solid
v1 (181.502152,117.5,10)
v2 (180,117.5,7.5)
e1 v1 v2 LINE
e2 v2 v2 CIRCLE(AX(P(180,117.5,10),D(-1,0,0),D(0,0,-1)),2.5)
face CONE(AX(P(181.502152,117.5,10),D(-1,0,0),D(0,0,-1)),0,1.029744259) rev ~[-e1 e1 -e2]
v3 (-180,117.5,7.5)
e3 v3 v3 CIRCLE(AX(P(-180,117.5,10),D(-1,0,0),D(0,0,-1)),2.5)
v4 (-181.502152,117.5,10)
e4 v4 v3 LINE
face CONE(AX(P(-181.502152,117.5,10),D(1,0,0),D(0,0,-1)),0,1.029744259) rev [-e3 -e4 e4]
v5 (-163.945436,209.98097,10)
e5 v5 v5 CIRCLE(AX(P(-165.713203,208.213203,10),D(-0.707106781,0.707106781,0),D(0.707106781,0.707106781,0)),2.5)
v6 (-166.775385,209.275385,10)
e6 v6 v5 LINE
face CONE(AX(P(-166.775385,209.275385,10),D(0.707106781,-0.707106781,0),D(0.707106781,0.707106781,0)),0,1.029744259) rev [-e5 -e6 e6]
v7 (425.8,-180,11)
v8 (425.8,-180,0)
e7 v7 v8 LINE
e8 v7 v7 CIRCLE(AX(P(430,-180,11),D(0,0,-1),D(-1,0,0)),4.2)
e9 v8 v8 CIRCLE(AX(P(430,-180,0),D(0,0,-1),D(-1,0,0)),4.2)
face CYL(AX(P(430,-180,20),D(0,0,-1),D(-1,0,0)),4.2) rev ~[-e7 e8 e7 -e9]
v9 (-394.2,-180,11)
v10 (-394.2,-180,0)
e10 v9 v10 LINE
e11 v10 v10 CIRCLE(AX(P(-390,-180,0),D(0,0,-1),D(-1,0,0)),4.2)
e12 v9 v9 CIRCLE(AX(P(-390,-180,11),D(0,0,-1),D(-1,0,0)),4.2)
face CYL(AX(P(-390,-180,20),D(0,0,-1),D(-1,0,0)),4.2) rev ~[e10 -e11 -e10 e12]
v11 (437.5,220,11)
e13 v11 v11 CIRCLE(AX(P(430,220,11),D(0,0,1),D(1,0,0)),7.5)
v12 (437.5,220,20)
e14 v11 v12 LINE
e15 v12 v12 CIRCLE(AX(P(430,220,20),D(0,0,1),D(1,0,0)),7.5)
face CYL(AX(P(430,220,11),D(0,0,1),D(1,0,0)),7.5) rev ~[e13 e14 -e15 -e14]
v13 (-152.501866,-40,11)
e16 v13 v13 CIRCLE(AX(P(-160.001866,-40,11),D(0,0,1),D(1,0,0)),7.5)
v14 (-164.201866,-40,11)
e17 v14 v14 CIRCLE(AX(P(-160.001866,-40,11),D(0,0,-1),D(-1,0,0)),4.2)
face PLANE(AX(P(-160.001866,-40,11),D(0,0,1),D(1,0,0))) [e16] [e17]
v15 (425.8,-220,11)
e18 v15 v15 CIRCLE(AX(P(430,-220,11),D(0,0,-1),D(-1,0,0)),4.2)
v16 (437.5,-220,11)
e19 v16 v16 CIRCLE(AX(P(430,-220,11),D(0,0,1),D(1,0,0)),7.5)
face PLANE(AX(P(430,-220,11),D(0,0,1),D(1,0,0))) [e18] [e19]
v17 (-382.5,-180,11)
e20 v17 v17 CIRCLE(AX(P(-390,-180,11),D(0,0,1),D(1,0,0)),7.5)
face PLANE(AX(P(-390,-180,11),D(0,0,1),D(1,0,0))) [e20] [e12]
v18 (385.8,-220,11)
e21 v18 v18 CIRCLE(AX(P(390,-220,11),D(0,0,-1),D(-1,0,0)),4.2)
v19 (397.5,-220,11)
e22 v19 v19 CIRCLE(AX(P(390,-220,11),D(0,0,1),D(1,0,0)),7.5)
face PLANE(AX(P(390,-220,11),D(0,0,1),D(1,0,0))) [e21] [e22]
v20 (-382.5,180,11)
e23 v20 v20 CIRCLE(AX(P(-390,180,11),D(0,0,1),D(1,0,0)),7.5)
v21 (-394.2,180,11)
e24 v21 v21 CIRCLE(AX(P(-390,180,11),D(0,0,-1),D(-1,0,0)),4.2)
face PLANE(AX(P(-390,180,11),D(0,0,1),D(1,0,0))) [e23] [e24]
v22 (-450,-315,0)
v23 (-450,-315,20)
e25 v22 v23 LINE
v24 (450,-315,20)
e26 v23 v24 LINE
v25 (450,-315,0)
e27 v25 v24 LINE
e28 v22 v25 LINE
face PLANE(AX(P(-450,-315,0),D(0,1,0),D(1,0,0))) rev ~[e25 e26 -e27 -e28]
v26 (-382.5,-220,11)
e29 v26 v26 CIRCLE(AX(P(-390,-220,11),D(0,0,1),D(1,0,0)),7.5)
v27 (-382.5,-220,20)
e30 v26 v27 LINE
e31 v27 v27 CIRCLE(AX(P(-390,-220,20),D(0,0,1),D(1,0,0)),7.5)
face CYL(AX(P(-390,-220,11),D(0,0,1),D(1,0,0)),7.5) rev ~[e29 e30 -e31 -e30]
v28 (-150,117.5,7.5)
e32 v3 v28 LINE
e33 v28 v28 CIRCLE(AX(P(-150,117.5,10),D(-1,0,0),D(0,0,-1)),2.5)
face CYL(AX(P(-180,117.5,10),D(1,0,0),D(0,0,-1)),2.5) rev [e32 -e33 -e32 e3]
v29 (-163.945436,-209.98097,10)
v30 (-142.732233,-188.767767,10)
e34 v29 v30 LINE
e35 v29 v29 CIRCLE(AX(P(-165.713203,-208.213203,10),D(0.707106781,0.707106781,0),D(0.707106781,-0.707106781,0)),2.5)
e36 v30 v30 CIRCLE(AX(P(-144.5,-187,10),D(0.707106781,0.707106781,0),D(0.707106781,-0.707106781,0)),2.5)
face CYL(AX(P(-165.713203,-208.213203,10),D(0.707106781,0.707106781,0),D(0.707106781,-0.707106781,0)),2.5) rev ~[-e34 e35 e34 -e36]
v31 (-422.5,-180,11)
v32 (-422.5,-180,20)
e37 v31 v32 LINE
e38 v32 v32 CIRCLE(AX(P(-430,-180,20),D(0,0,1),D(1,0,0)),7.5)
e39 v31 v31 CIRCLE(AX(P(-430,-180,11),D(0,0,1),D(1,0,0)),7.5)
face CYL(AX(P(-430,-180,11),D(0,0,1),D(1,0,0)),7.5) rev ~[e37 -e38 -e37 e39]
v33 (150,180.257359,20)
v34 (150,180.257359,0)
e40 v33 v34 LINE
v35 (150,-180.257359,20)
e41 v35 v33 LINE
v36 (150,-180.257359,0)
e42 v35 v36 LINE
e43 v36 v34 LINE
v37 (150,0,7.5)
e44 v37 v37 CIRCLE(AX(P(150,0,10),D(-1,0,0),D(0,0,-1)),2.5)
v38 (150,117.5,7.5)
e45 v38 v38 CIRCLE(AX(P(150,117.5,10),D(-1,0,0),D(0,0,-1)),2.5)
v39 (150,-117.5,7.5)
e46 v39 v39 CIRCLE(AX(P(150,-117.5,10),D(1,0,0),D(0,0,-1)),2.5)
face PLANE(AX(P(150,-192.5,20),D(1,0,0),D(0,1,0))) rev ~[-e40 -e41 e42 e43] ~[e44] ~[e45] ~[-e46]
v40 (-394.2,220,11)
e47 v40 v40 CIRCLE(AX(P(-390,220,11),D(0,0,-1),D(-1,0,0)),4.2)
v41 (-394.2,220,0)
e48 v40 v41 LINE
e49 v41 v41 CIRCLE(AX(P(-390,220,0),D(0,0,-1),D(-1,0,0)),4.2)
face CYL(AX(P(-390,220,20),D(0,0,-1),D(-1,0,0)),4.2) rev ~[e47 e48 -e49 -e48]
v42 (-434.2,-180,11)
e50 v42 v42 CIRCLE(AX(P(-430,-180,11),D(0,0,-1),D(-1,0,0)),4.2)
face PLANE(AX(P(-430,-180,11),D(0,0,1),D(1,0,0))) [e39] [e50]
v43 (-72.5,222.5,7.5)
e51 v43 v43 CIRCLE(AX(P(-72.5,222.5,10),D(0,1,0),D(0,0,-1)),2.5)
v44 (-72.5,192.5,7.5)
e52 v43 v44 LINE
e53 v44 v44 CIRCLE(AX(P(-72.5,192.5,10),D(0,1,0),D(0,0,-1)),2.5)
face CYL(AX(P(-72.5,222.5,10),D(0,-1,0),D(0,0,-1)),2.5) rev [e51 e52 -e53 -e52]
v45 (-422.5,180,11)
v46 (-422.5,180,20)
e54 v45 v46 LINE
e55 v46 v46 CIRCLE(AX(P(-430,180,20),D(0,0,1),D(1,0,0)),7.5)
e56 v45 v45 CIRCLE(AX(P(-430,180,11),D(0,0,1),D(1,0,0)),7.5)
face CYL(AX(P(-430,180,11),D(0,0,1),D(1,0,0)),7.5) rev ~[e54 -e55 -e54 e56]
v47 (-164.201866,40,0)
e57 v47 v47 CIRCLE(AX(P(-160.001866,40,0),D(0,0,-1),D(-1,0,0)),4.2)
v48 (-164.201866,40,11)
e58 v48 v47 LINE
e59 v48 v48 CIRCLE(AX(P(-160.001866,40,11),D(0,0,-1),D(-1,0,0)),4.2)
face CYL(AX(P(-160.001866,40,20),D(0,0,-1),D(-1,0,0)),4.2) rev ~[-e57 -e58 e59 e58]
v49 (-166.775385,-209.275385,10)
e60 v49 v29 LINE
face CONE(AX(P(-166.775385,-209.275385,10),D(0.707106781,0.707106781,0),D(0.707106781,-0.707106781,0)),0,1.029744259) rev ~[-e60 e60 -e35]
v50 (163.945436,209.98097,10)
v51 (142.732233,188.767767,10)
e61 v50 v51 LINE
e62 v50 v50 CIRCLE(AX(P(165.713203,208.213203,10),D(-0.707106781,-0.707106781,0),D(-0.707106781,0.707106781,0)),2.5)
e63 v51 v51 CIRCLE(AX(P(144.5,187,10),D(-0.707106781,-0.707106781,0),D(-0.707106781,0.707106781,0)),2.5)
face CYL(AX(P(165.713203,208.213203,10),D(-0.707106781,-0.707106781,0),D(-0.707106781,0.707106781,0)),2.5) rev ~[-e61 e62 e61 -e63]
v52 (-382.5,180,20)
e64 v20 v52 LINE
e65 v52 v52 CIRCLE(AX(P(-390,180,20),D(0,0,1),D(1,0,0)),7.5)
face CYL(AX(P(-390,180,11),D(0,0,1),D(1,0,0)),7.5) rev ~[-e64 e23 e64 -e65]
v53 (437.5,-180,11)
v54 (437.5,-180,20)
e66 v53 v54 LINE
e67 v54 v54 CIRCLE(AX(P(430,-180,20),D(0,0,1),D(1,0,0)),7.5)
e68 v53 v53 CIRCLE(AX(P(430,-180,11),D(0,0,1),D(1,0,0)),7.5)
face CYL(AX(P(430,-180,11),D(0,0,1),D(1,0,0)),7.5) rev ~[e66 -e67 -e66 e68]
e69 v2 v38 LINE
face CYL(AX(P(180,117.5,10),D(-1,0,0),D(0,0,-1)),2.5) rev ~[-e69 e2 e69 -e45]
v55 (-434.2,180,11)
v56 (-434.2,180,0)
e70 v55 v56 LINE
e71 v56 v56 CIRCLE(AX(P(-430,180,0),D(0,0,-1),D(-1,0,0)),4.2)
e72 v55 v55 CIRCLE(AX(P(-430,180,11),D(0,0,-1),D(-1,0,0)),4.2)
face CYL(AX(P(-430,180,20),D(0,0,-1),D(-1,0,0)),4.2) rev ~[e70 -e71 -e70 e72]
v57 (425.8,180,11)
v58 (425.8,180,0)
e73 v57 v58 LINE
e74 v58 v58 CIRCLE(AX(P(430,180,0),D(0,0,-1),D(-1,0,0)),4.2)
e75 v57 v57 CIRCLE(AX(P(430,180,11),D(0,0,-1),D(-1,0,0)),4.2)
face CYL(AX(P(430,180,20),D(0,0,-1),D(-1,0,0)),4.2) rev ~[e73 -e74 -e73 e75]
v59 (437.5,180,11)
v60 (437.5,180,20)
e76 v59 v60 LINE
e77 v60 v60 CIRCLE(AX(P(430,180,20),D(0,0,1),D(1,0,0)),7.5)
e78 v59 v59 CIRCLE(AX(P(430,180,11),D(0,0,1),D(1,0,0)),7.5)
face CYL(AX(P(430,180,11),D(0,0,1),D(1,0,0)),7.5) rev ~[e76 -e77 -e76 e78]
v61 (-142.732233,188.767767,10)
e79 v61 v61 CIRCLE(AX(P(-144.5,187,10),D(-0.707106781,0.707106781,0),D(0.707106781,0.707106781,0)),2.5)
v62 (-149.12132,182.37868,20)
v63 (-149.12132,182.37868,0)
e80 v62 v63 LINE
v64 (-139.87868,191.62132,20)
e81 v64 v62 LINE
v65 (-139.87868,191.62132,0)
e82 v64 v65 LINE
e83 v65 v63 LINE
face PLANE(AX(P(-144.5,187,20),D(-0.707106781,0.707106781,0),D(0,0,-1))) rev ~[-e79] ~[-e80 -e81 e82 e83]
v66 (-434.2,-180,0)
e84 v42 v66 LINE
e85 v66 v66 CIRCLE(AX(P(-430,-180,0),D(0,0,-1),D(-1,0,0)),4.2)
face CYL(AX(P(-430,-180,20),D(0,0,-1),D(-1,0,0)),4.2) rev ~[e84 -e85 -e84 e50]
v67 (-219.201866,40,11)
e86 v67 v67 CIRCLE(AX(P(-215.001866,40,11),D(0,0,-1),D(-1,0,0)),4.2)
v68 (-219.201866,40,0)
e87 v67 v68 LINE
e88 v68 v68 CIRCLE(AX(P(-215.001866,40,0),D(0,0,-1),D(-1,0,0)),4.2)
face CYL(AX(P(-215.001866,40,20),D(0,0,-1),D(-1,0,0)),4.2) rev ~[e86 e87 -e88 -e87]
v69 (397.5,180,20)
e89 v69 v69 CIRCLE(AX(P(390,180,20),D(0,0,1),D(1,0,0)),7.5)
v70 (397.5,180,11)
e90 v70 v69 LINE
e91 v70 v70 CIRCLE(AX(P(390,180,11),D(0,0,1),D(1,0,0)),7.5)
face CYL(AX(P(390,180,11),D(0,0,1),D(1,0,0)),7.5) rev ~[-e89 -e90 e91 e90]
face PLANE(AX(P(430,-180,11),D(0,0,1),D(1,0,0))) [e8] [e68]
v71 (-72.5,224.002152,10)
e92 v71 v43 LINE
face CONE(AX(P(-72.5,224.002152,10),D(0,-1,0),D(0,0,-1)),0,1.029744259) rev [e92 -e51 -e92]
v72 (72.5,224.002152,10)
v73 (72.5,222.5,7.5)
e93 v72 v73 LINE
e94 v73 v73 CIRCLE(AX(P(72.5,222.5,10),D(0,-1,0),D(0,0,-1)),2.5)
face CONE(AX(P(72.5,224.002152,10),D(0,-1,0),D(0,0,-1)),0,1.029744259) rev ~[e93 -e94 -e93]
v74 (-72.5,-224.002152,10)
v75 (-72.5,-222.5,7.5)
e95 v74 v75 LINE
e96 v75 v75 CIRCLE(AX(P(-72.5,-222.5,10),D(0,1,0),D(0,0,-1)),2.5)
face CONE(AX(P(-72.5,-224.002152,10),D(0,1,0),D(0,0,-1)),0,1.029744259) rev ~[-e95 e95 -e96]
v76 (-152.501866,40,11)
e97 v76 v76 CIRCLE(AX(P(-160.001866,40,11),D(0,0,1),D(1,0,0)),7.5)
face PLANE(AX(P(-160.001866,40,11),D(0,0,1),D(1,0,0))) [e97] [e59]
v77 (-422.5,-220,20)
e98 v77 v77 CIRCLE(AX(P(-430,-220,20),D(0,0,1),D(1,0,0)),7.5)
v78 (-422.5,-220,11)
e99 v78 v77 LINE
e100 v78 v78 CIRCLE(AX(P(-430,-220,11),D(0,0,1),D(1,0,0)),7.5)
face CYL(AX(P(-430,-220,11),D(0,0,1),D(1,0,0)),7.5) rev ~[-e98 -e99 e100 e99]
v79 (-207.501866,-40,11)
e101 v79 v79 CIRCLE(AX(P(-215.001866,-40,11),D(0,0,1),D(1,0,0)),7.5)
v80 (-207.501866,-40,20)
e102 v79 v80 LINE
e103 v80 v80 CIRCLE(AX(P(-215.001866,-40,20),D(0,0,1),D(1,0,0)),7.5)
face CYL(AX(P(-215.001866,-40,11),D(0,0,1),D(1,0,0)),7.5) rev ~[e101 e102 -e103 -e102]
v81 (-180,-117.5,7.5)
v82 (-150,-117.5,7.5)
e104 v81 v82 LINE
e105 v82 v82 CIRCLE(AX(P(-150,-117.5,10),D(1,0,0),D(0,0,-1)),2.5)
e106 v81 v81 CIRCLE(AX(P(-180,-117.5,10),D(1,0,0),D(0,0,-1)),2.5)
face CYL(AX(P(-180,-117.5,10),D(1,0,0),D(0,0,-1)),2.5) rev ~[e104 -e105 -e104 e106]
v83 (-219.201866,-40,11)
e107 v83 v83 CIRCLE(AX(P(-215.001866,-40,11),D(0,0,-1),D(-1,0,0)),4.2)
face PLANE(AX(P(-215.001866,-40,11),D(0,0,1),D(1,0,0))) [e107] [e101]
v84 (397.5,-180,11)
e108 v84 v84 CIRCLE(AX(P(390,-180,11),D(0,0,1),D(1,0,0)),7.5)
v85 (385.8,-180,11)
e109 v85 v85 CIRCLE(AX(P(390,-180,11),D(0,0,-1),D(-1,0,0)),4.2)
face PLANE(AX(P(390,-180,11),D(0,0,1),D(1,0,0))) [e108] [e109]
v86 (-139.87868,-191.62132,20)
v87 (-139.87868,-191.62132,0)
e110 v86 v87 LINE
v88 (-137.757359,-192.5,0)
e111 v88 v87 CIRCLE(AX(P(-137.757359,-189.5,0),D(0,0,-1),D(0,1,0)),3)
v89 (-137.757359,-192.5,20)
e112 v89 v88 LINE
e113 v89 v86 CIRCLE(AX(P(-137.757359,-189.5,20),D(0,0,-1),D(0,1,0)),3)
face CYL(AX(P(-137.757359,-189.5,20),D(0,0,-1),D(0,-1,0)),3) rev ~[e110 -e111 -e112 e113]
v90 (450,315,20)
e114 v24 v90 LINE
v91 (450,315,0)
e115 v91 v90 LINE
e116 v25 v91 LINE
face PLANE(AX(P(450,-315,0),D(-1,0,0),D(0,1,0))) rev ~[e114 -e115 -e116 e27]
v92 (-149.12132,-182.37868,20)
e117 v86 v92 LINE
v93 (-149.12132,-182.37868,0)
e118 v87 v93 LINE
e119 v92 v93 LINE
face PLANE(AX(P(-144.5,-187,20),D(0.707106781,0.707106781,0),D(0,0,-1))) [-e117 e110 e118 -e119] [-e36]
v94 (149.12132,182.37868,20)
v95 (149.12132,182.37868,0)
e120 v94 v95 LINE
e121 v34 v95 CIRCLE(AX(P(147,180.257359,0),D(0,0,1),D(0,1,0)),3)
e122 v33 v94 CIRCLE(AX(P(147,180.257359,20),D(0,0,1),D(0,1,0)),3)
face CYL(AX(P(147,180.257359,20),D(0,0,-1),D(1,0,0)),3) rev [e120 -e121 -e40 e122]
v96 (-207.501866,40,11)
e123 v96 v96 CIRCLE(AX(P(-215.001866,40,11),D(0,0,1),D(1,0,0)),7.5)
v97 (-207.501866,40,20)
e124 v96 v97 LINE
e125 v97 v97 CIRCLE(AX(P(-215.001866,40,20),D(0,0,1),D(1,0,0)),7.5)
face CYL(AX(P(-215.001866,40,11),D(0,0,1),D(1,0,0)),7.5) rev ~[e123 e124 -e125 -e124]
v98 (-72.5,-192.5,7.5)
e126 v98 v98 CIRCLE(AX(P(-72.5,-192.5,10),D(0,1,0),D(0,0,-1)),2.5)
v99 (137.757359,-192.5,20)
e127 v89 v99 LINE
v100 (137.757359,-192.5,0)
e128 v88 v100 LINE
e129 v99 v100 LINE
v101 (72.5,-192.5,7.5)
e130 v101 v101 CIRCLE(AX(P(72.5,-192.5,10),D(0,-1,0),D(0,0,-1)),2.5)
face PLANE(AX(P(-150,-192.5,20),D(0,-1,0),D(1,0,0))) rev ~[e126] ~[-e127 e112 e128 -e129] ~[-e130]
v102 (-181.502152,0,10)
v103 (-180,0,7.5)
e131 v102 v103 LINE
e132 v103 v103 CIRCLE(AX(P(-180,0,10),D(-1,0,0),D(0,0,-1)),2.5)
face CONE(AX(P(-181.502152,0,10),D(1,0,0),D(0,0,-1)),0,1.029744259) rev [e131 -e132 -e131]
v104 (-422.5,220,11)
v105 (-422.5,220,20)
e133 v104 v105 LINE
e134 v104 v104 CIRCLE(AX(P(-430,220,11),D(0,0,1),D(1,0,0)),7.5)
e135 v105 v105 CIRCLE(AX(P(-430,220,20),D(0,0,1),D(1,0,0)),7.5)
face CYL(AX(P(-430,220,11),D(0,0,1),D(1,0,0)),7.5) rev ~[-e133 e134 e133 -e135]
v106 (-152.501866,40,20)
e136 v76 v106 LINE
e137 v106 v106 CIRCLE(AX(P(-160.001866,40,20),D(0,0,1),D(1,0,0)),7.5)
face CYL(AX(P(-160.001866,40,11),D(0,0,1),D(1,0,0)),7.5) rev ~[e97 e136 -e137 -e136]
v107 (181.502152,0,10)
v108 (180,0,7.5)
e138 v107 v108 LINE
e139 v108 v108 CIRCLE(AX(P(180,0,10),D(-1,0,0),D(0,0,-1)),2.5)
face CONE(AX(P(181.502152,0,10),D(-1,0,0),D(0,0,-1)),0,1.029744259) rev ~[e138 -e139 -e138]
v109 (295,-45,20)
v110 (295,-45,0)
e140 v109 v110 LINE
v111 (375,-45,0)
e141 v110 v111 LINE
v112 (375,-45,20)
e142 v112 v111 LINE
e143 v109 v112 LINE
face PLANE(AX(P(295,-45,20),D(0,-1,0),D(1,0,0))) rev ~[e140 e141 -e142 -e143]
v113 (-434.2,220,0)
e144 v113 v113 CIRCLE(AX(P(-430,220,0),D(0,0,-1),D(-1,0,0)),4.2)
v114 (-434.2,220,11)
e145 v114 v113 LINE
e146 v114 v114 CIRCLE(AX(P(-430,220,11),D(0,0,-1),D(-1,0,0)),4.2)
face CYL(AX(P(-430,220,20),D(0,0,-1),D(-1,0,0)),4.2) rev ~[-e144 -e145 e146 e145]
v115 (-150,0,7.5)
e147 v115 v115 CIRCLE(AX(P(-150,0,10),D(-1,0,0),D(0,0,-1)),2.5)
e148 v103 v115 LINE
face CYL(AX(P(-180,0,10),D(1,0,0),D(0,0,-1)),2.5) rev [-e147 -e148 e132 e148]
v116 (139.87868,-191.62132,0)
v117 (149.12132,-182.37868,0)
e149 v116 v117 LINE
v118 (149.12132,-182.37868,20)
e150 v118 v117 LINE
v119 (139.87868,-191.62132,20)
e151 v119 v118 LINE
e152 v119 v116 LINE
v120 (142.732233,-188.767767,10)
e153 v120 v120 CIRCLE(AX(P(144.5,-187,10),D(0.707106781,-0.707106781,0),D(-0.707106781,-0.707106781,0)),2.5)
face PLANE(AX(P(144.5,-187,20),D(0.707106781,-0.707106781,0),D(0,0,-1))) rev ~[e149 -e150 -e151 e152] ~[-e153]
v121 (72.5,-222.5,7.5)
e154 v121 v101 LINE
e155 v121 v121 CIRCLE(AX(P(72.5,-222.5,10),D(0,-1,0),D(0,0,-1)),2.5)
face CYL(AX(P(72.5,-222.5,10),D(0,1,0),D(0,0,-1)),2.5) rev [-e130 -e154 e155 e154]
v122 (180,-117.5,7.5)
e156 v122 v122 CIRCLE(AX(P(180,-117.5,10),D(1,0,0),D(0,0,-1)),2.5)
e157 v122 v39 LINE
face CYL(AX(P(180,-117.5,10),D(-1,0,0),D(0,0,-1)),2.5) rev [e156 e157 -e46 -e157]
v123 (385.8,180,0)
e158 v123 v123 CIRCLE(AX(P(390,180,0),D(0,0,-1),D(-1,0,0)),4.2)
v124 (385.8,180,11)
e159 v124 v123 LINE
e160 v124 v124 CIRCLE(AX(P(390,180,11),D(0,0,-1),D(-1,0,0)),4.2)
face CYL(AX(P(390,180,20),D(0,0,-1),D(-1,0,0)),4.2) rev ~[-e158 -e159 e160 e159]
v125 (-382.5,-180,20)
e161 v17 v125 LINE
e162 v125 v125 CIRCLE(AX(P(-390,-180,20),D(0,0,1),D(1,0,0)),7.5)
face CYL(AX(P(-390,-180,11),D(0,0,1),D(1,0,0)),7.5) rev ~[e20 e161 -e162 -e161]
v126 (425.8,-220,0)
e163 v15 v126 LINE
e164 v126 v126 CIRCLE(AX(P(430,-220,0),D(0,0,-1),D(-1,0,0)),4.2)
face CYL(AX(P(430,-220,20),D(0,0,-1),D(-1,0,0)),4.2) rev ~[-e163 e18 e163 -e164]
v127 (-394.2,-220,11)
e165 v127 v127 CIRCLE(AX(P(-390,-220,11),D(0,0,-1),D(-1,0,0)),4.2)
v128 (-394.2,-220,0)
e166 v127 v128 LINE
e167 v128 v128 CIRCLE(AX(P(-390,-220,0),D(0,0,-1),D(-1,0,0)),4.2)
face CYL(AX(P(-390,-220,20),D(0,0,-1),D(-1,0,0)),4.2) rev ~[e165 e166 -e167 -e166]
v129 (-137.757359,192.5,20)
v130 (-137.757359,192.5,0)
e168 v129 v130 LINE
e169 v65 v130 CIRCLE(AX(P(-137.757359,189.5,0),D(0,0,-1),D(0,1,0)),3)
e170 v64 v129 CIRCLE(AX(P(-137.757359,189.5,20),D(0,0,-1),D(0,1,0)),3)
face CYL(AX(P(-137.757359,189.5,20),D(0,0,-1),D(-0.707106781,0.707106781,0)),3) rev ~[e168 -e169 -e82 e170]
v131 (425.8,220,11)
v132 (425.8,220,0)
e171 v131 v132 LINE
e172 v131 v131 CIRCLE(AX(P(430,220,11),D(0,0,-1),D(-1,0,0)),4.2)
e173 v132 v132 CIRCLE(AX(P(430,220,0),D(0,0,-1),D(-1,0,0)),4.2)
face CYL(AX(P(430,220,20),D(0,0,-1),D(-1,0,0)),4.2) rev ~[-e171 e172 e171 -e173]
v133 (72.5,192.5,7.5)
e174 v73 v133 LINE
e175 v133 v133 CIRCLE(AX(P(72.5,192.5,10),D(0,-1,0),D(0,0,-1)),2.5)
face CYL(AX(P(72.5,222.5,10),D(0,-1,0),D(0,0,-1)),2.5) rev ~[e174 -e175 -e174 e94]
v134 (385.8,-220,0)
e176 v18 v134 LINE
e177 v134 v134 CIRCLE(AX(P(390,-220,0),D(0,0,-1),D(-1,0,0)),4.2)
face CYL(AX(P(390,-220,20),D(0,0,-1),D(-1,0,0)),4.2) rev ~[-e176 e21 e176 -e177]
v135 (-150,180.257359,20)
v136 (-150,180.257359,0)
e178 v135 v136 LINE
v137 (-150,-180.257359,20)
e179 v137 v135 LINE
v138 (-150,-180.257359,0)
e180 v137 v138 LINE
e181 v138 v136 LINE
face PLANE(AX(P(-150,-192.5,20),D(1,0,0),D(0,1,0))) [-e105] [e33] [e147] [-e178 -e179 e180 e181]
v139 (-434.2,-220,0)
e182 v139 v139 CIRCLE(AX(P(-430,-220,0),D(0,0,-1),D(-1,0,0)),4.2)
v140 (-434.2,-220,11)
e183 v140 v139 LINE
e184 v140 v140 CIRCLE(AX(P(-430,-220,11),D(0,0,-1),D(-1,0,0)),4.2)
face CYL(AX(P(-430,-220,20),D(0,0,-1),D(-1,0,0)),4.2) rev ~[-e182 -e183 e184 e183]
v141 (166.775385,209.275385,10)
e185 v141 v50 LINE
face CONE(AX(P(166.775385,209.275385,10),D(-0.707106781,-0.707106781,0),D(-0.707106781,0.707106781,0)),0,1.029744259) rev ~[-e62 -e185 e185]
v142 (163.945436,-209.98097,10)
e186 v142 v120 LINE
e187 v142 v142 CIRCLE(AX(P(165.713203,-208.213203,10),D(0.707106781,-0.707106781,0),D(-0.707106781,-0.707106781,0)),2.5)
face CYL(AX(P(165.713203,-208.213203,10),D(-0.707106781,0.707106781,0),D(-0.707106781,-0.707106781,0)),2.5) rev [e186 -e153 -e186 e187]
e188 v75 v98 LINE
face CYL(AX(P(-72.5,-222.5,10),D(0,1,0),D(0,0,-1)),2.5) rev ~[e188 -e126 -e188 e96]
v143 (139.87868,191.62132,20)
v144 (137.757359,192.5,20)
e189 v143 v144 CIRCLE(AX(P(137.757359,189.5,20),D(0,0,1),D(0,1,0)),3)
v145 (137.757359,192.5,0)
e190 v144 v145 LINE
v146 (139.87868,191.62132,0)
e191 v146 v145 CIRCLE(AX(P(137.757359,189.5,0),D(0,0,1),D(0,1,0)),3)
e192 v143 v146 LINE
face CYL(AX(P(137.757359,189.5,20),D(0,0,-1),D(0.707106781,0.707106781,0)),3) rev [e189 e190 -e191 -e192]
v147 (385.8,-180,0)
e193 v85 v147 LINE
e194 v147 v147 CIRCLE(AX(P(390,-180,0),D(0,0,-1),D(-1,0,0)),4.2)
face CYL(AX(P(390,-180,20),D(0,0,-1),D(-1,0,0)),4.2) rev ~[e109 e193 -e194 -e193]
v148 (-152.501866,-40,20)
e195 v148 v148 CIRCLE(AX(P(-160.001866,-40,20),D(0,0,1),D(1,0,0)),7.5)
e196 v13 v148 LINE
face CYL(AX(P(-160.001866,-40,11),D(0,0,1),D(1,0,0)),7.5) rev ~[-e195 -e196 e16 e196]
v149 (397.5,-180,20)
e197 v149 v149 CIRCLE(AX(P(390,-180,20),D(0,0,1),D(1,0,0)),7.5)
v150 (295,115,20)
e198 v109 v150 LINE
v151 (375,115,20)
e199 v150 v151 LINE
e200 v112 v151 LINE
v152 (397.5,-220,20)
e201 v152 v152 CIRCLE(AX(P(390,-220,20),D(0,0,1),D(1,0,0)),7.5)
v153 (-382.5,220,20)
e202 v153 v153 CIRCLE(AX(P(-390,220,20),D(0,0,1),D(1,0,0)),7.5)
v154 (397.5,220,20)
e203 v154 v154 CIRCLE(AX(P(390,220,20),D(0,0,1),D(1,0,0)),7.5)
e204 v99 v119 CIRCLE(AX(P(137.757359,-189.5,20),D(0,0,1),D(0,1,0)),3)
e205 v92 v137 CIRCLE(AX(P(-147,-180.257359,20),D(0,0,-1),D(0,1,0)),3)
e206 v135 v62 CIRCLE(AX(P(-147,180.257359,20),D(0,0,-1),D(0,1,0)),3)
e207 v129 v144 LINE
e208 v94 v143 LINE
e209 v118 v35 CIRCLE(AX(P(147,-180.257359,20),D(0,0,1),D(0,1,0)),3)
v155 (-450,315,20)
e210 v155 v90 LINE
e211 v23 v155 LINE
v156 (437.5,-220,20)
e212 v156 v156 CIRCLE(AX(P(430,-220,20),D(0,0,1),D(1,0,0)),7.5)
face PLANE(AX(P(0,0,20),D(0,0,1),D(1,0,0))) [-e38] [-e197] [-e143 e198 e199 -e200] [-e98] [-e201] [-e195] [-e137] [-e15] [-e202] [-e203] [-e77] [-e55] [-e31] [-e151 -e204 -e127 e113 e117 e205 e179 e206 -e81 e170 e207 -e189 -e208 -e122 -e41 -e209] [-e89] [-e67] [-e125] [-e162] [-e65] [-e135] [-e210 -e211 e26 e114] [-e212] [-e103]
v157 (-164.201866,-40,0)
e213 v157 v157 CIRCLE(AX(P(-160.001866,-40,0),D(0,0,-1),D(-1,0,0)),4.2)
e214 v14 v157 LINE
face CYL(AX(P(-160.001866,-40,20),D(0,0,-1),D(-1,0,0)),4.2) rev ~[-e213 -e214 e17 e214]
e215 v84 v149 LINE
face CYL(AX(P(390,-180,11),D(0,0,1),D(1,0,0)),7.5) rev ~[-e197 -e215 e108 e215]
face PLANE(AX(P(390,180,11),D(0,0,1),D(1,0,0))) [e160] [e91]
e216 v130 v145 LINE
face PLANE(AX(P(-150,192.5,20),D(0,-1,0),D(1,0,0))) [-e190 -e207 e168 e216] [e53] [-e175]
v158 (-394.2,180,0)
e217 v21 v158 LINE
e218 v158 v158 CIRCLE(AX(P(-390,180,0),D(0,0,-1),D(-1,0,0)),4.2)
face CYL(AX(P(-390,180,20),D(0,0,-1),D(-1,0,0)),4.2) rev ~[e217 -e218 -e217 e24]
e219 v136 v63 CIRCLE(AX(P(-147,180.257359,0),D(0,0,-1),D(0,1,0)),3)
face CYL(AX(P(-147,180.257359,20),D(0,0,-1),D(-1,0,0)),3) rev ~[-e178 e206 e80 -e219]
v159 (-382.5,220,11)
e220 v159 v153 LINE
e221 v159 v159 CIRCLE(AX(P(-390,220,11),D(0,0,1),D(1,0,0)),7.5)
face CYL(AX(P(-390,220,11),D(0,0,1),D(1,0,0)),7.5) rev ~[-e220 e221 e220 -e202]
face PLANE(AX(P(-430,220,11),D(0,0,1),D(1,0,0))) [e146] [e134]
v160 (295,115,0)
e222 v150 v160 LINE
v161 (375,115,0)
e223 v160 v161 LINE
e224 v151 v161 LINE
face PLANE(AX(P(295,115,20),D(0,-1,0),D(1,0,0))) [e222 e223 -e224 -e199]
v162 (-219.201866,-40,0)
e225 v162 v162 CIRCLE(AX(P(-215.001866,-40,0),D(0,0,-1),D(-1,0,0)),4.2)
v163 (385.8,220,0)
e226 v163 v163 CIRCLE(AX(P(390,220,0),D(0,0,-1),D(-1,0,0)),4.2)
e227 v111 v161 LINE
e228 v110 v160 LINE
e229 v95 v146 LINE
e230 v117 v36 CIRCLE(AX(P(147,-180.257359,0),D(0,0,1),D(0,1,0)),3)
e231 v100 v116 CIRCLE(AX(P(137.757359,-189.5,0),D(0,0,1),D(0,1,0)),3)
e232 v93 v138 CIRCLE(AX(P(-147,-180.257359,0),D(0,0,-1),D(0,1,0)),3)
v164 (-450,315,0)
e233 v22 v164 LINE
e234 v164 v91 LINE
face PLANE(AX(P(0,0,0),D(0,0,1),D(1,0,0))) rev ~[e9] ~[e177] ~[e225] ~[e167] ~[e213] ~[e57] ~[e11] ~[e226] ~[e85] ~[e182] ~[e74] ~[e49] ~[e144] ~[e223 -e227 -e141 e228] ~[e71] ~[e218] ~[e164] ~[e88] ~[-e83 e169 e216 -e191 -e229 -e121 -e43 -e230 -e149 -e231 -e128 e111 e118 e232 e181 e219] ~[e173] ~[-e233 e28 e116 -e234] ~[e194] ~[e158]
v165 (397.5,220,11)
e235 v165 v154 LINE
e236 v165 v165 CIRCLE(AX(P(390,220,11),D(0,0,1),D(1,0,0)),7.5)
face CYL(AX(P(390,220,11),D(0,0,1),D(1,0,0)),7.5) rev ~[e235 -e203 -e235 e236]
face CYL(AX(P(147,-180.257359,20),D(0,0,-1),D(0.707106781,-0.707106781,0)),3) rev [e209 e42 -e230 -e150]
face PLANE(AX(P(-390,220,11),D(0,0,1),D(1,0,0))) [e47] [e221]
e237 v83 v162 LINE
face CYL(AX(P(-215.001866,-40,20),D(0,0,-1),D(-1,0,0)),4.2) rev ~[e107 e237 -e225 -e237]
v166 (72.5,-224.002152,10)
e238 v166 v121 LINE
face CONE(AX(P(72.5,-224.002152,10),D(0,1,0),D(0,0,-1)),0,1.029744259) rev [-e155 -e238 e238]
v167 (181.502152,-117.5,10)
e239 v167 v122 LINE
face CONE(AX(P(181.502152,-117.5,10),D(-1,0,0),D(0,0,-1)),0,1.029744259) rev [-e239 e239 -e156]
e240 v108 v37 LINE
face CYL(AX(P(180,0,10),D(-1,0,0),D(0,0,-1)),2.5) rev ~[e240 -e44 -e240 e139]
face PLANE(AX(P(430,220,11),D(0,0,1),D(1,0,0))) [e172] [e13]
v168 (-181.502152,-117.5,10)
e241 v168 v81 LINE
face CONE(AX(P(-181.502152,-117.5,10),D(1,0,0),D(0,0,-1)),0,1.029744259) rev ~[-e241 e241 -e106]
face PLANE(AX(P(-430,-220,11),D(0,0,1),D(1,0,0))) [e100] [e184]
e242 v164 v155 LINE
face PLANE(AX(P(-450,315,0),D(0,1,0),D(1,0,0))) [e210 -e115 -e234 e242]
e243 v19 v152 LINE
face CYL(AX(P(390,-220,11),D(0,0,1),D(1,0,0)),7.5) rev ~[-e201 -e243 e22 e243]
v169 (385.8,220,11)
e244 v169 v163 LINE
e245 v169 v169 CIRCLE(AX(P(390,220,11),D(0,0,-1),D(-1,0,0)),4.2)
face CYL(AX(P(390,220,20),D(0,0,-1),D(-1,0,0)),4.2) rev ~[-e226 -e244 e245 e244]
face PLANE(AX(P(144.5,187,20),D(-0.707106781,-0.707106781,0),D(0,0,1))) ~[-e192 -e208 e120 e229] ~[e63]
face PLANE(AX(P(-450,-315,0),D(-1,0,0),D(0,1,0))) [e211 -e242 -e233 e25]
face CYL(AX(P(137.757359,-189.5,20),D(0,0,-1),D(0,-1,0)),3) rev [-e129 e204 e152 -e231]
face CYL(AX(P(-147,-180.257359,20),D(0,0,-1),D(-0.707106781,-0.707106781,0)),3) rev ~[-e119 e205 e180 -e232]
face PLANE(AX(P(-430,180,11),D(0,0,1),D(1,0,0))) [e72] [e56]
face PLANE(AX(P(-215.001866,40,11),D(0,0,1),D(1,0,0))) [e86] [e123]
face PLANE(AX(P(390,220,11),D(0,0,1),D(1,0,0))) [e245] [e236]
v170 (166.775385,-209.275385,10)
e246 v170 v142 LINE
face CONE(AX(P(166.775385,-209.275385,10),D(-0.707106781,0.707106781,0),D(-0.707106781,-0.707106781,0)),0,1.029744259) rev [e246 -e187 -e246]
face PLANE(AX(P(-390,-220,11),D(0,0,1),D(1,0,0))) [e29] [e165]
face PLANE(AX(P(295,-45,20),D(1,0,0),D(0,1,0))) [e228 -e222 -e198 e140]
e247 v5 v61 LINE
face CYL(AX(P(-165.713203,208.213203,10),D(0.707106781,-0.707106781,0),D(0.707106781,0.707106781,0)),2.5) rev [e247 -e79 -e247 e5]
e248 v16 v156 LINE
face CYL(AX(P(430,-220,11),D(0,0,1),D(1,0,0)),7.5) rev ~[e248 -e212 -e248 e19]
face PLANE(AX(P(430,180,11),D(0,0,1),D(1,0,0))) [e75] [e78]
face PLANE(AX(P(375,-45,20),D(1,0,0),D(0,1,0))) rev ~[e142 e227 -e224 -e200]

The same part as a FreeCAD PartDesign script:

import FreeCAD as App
import Part
import Sketcher

V = App.Vector
Q = App.Units.Quantity


def edges_at(feature, points):
    """Names of the edges that pass closest to the given points."""
    edges = feature.Shape.Edges
    near = lambda p: min(range(len(edges)), key=lambda i: edges[i].distToShape(Part.Vertex(*p))[0])
    return sorted({f"Edge{near(p) + 1}" for p in points})

doc = App.newDocument("Part")
body = doc.addObject("PartDesign::Body", "Body")

sketch1 = doc.addObject("Sketcher::SketchObject", "Sketch")
body.addObject(sketch1)
sketch1.AttachmentSupport = (doc.XY_Plane, [""])
sketch1.MapMode = "FlatFace"
sketch1.addGeometry([
    Part.LineSegment(V(-450, 315, 0), V(-450, -315, 0)),
    Part.LineSegment(V(-450, -315, 0), V(450, -315, 0)),
    Part.LineSegment(V(450, -315, 0), V(450, 315, 0)),
    Part.LineSegment(V(450, 315, 0), V(-450, 315, 0)),
], False)
sketch1.addConstraint([
    Sketcher.Constraint("Coincident", 0, 2, 1, 1),
    Sketcher.Constraint("Coincident", 1, 2, 2, 1),
    Sketcher.Constraint("Coincident", 2, 2, 3, 1),
    Sketcher.Constraint("Coincident", 3, 2, 0, 1),
    Sketcher.Constraint("Vertical", 0),
    Sketcher.Constraint("Horizontal", 1),
    Sketcher.Constraint("Vertical", 2),
    Sketcher.Constraint("Horizontal", 3),
    Sketcher.Constraint("Symmetric", 0, 2, 2, 2, -1, 1),
    Sketcher.Constraint("DistanceX", 1, 1, 1, 2, 900.0),
    Sketcher.Constraint("DistanceY", 0, 2, 0, 1, 630.0),
])
pad1 = doc.addObject("PartDesign::Pad", "Pad")
body.addObject(pad1)
pad1.Profile = sketch1
pad1.Length = 20

sketch2 = doc.addObject("Sketcher::SketchObject", "Sketch001")
body.addObject(sketch2)
sketch2.AttachmentSupport = (doc.XY_Plane, [""])
sketch2.MapMode = "FlatFace"
sketch2.AttachmentOffset = App.Placement(V(0, 0, 20), App.Rotation())
sketch2.addGeometry([
    Part.LineSegment(V(-150, 192, 0), V(-150, -192, 0)),
    Part.LineSegment(V(-150, -192, 0), V(150, -192, 0)),
    Part.LineSegment(V(150, -192, 0), V(150, 192, 0)),
    Part.LineSegment(V(150, 192, 0), V(-150, 192, 0)),
], False)
sketch2.addConstraint([
    Sketcher.Constraint("Coincident", 0, 2, 1, 1),
    Sketcher.Constraint("Coincident", 1, 2, 2, 1),
    Sketcher.Constraint("Coincident", 2, 2, 3, 1),
    Sketcher.Constraint("Coincident", 3, 2, 0, 1),
    Sketcher.Constraint("Vertical", 0),
    Sketcher.Constraint("Horizontal", 1),
    Sketcher.Constraint("Vertical", 2),
    Sketcher.Constraint("Horizontal", 3),
    Sketcher.Constraint("Symmetric", 0, 2, 2, 2, -1, 1),
    Sketcher.Constraint("DistanceX", 1, 1, 1, 2, 300.0),
    Sketcher.Constraint("DistanceY", 0, 2, 0, 1, 385.0),
])
pocket1 = doc.addObject("PartDesign::Pocket", "Pocket")
body.addObject(pocket1)
pocket1.Profile = sketch2
pocket1.Type = "ThroughAll"
doc.recompute()

chamfer = doc.addObject("PartDesign::Chamfer", "Chamfer")
body.addObject(chamfer)
chamfer.Base = (pocket1, edges_at(pocket1, [
    (-150, -192.5, 10),
    (-150, 192.5, 10),
    (150, 192.5, 10),
    (150, -192.5, 10),
]))
chamfer.Size = 11

sketch3 = doc.addObject("Sketcher::SketchObject", "Sketch002")
body.addObject(sketch3)
sketch3.AttachmentSupport = (doc.XY_Plane, [""])
sketch3.MapMode = "FlatFace"
sketch3.AttachmentOffset = App.Placement(V(0, 0, 10), App.Rotation())
sketch3.addGeometry([
    Part.LineSegment(V(-166.8, 209.3, 0), V(-144.5, 187, 0)),
    Part.LineSegment(V(-144.5, 187, 0), V(-142.7, 188.8, 0)),
    Part.LineSegment(V(-142.7, 188.8, 0), V(-163.9, 210, 0)),
    Part.LineSegment(V(-163.9, 210, 0), V(-166.8, 209.3, 0)),
], False)
sketch3.addGeometry(Part.LineSegment(V(-144.5, 187, 0), V(-166.8, 209.3, 0)), True)
sketch3.addConstraint([
    Sketcher.Constraint("Coincident", 0, 2, 1, 1),
    Sketcher.Constraint("Coincident", 1, 2, 2, 1),
    Sketcher.Constraint("Coincident", 2, 2, 3, 1),
    Sketcher.Constraint("Coincident", 3, 2, 0, 1),
    Sketcher.Constraint("Coincident", 4, 1, 0, 2),
    Sketcher.Constraint("Coincident", 4, 2, 3, 2),
    Sketcher.Constraint("Perpendicular", 0, 1),
    Sketcher.Constraint("Perpendicular", 1, 2),
    Sketcher.Constraint("Angle", 0, Q("-45 deg")),
    Sketcher.Constraint("Angle", 3, Q("-166 deg")),
    Sketcher.Constraint("Distance", 2, 30.0),
    Sketcher.Constraint("DistanceY", -1, 1, 0, 2, 187.0),
    Sketcher.Constraint("Distance", 1, 2.5),
    Sketcher.Constraint("DistanceX", 0, 2, -1, 1, 144.5),
])
groove = doc.addObject("PartDesign::Groove", "Groove")
body.addObject(groove)
groove.Profile = sketch3
groove.ReferenceAxis = (sketch3, ["Axis0"])
groove.Angle = 360
doc.recompute()

fillet = doc.addObject("PartDesign::Fillet", "Fillet")
body.addObject(fillet)
fillet.Base = (groove, edges_at(groove, [
    (139, -192.5, 10),
    (-139, -192.5, 10),
    (-150, 181.5, 10),
    (-150, -181.5, 10),
    (150, 181.5, 10),
    (150, -181.5, 10),
    (-139, 192.5, 10),
    (139, 192.5, 10),
]))
fillet.Radius = 3

sketch4 = doc.addObject("Sketcher::SketchObject", "Sketch003")
body.addObject(sketch4)
sketch4.AttachmentSupport = (doc.XZ_Plane, [""])
sketch4.MapMode = "FlatFace"
sketch4.addGeometry([
    Part.LineSegment(V(-181.5, 10, 0), V(-150, 10, 0)),
    Part.LineSegment(V(-150, 10, 0), V(-150, 7.5, 0)),
    Part.LineSegment(V(-150, 7.5, 0), V(-180, 7.5, 0)),
    Part.LineSegment(V(-180, 7.5, 0), V(-181.5, 10, 0)),
], False)
sketch4.addGeometry(Part.LineSegment(V(-150, 10, 0), V(-181.5, 10, 0)), True)
sketch4.addConstraint([
    Sketcher.Constraint("Coincident", 0, 2, 1, 1),
    Sketcher.Constraint("Coincident", 1, 2, 2, 1),
    Sketcher.Constraint("Coincident", 2, 2, 3, 1),
    Sketcher.Constraint("Coincident", 3, 2, 0, 1),
    Sketcher.Constraint("Horizontal", 0),
    Sketcher.Constraint("Vertical", 1),
    Sketcher.Constraint("Horizontal", 2),
    Sketcher.Constraint("Horizontal", 4),
    Sketcher.Constraint("Coincident", 4, 1, 0, 2),
    Sketcher.Constraint("Equal", 0, 4),
    Sketcher.Constraint("DistanceX", 2, 2, 2, 1, 30.0),
    Sketcher.Constraint("Angle", 3, Q("121 deg")),
    Sketcher.Constraint("DistanceY", 1, 2, 1, 1, 2.5),
    Sketcher.Constraint("DistanceX", 0, 2, -1, 1, 150.0),
    Sketcher.Constraint("DistanceY", -1, 1, 0, 2, 10.0),
])
groove2 = doc.addObject("PartDesign::Groove", "Groove001")
body.addObject(groove2)
groove2.Profile = sketch4
groove2.ReferenceAxis = (sketch4, ["Axis0"])
groove2.Angle = 360
doc.recompute()

linearpattern = doc.addObject("PartDesign::LinearPattern", "LinearPattern")
body.addObject(linearpattern)
linearpattern.Originals = [groove2]
linearpattern.Direction = (doc.Y_Axis, [""])
linearpattern.Mode = "offset"
linearpattern.Offset = 117.5
linearpattern.Occurrences = 2
body.Tip = linearpattern

sketch5 = doc.addObject("Sketcher::SketchObject", "Sketch004")
body.addObject(sketch5)
sketch5.AttachmentSupport = (doc.YZ_Plane, [""])
sketch5.MapMode = "FlatFace"
sketch5.AttachmentOffset = App.Placement(V(0, 0, -72.5), App.Rotation())
sketch5.addGeometry([
    Part.LineSegment(V(224, 10, 0), V(192.5, 10, 0)),
    Part.LineSegment(V(192.5, 10, 0), V(192.5, 7.5, 0)),
    Part.LineSegment(V(192.5, 7.5, 0), V(222.5, 7.5, 0)),
    Part.LineSegment(V(222.5, 7.5, 0), V(224, 10, 0)),
], False)
sketch5.addGeometry(Part.LineSegment(V(192.5, 10, 0), V(224, 10, 0)), True)
sketch5.addConstraint([
    Sketcher.Constraint("Coincident", 0, 2, 1, 1),
    Sketcher.Constraint("Coincident", 1, 2, 2, 1),
    Sketcher.Constraint("Coincident", 2, 2, 3, 1),
    Sketcher.Constraint("Coincident", 3, 2, 0, 1),
    Sketcher.Constraint("Horizontal", 0),
    Sketcher.Constraint("Vertical", 1),
    Sketcher.Constraint("Horizontal", 2),
    Sketcher.Constraint("Horizontal", 4),
    Sketcher.Constraint("Coincident", 4, 1, 0, 2),
    Sketcher.Constraint("Equal", 0, 4),
    Sketcher.Constraint("DistanceX", 2, 1, 2, 2, 30.0),
    Sketcher.Constraint("Angle", 3, Q("59 deg")),
    Sketcher.Constraint("DistanceY", 1, 2, 1, 1, 2.5),
    Sketcher.Constraint("DistanceY", -1, 1, 0, 2, 10.0),
    Sketcher.Constraint("DistanceX", -1, 1, 0, 2, 192.5),
])
groove3 = doc.addObject("PartDesign::Groove", "Groove002")
body.addObject(groove3)
groove3.Profile = sketch5
groove3.ReferenceAxis = (sketch5, ["Axis0"])
groove3.Angle = 360
doc.recompute()

mirrored = doc.addObject("PartDesign::Mirrored", "Mirrored")
body.addObject(mirrored)
mirrored.Originals = [groove, groove2, groove3]
mirrored.MirrorPlane = (doc.YZ_Plane, [""])
body.Tip = mirrored

sketch6 = doc.addObject("Sketcher::SketchObject", "Sketch005")
body.addObject(sketch6)
sketch6.AttachmentSupport = (doc.XZ_Plane, [""])
sketch6.MapMode = "FlatFace"
sketch6.AttachmentOffset = App.Placement(V(0, 0, -117.5), App.Rotation())
sketch6.addGeometry([
    Part.LineSegment(V(150, 10, 0), V(181.5, 10, 0)),
    Part.LineSegment(V(181.5, 10, 0), V(180, 7.5, 0)),
    Part.LineSegment(V(180, 7.5, 0), V(150, 7.5, 0)),
    Part.LineSegment(V(150, 7.5, 0), V(150, 10, 0)),
], False)
sketch6.addGeometry(Part.LineSegment(V(181.5, 10, 0), V(150, 10, 0)), True)
sketch6.addConstraint([
    Sketcher.Constraint("Coincident", 0, 2, 1, 1),
    Sketcher.Constraint("Coincident", 1, 2, 2, 1),
    Sketcher.Constraint("Coincident", 2, 2, 3, 1),
    Sketcher.Constraint("Coincident", 3, 2, 0, 1),
    Sketcher.Constraint("Horizontal", 0),
    Sketcher.Constraint("Horizontal", 2),
    Sketcher.Constraint("Vertical", 3),
    Sketcher.Constraint("Horizontal", 4),
    Sketcher.Constraint("Coincident", 4, 1, 0, 2),
    Sketcher.Constraint("Vertical", 2, 2, 4, 2),
    Sketcher.Constraint("DistanceX", 2, 2, 2, 1, 30.0),
    Sketcher.Constraint("Angle", 1, Q("-121 deg")),
    Sketcher.Constraint("DistanceY", 3, 1, 3, 2, 2.5),
    Sketcher.Constraint("DistanceY", -1, 1, 0, 2, 10.0),
    Sketcher.Constraint("DistanceX", -1, 1, 1, 2, 180.0),
])
groove4 = doc.addObject("PartDesign::Groove", "Groove003")
body.addObject(groove4)
groove4.Profile = sketch6
groove4.ReferenceAxis = (sketch6, ["Axis0"])
groove4.Angle = 360
doc.recompute()

mirrored2 = doc.addObject("PartDesign::Mirrored", "Mirrored001")
body.addObject(mirrored2)
mirrored2.Originals = [groove, groove2, groove3]
mirrored2.MirrorPlane = (doc.XZ_Plane, [""])
body.Tip = mirrored2

sketch7 = doc.addObject("Sketcher::SketchObject", "Sketch006")
body.addObject(sketch7)
sketch7.AttachmentSupport = (doc.XZ_Plane, [""])
sketch7.MapMode = "FlatFace"
sketch7.AttachmentOffset = App.Placement(V(0, 0, 117.5), App.Rotation())
sketch7.addGeometry([
    Part.LineSegment(V(-150, 10, 0), V(-181.5, 10, 0)),
    Part.LineSegment(V(-181.5, 10, 0), V(-180, 7.5, 0)),
    Part.LineSegment(V(-180, 7.5, 0), V(-150, 7.5, 0)),
    Part.LineSegment(V(-150, 7.5, 0), V(-150, 10, 0)),
], False)
sketch7.addGeometry(Part.LineSegment(V(-181.5, 10, 0), V(-150, 10, 0)), True)
sketch7.addConstraint([
    Sketcher.Constraint("Coincident", 0, 2, 1, 1),
    Sketcher.Constraint("Coincident", 1, 2, 2, 1),
    Sketcher.Constraint("Coincident", 2, 2, 3, 1),
    Sketcher.Constraint("Coincident", 3, 2, 0, 1),
    Sketcher.Constraint("Horizontal", 0),
    Sketcher.Constraint("Horizontal", 2),
    Sketcher.Constraint("Vertical", 3),
    Sketcher.Constraint("Horizontal", 4),
    Sketcher.Constraint("Coincident", 4, 1, 0, 2),
    Sketcher.Constraint("Vertical", 2, 2, 4, 2),
    Sketcher.Constraint("DistanceX", 2, 1, 2, 2, 30.0),
    Sketcher.Constraint("Angle", 1, Q("-59 deg")),
    Sketcher.Constraint("DistanceY", 3, 1, 3, 2, 2.5),
    Sketcher.Constraint("DistanceY", -1, 1, 0, 2, 10.0),
    Sketcher.Constraint("DistanceX", 1, 2, -1, 1, 180.0),
])
groove5 = doc.addObject("PartDesign::Groove", "Groove004")
body.addObject(groove5)
groove5.Profile = sketch7
groove5.ReferenceAxis = (sketch7, ["Axis0"])
groove5.Angle = 360

sketch8 = doc.addObject("Sketcher::SketchObject", "Sketch007")
body.addObject(sketch8)
sketch8.AttachmentSupport = (doc.XY_Plane, [""])
sketch8.MapMode = "FlatFace"
sketch8.AttachmentOffset = App.Placement(V(0, 0, 10), App.Rotation())
sketch8.addGeometry([
    Part.LineSegment(V(166.8, -209.3, 0), V(144.5, -187, 0)),
    Part.LineSegment(V(144.5, -187, 0), V(142.7, -188.8, 0)),
    Part.LineSegment(V(142.7, -188.8, 0), V(163.9, -210, 0)),
    Part.LineSegment(V(163.9, -210, 0), V(166.8, -209.3, 0)),
], False)
sketch8.addGeometry(Part.LineSegment(V(144.5, -187, 0), V(166.8, -209.3, 0)), True)
sketch8.addConstraint([
    Sketcher.Constraint("Coincident", 0, 2, 1, 1),
    Sketcher.Constraint("Coincident", 1, 2, 2, 1),
    Sketcher.Constraint("Coincident", 2, 2, 3, 1),
    Sketcher.Constraint("Coincident", 3, 2, 0, 1),
    Sketcher.Constraint("Coincident", 4, 1, 0, 2),
    Sketcher.Constraint("Coincident", 4, 2, 3, 2),
    Sketcher.Constraint("Perpendicular", 0, 1),
    Sketcher.Constraint("Perpendicular", 1, 2),
    Sketcher.Constraint("Angle", 0, Q("135 deg")),
    Sketcher.Constraint("Angle", 3, Q("14 deg")),
    Sketcher.Constraint("Distance", 2, 30.0),
    Sketcher.Constraint("DistanceY", 0, 2, -1, 1, 187.0),
    Sketcher.Constraint("Distance", 1, 2.5),
    Sketcher.Constraint("DistanceX", -1, 1, 0, 2, 144.5),
])
groove6 = doc.addObject("PartDesign::Groove", "Groove005")
body.addObject(groove6)
groove6.Profile = sketch8
groove6.ReferenceAxis = (sketch8, ["Axis0"])
groove6.Angle = 360

sketch9 = doc.addObject("Sketcher::SketchObject", "Sketch008")
body.addObject(sketch9)
sketch9.AttachmentSupport = (doc.XZ_Plane, [""])
sketch9.MapMode = "FlatFace"
sketch9.addGeometry([
    Part.LineSegment(V(181.5, 10, 0), V(150, 10, 0)),
    Part.LineSegment(V(150, 10, 0), V(150, 7.5, 0)),
    Part.LineSegment(V(150, 7.5, 0), V(180, 7.5, 0)),
    Part.LineSegment(V(180, 7.5, 0), V(181.5, 10, 0)),
], False)
sketch9.addGeometry(Part.LineSegment(V(150, 10, 0), V(181.5, 10, 0)), True)
sketch9.addConstraint([
    Sketcher.Constraint("Coincident", 0, 2, 1, 1),
    Sketcher.Constraint("Coincident", 1, 2, 2, 1),
    Sketcher.Constraint("Coincident", 2, 2, 3, 1),
    Sketcher.Constraint("Coincident", 3, 2, 0, 1),
    Sketcher.Constraint("Horizontal", 0),
    Sketcher.Constraint("Vertical", 1),
    Sketcher.Constraint("Horizontal", 2),
    Sketcher.Constraint("Horizontal", 4),
    Sketcher.Constraint("Coincident", 4, 1, 0, 2),
    Sketcher.Constraint("Equal", 0, 4),
    Sketcher.Constraint("DistanceX", 2, 1, 2, 2, 30.0),
    Sketcher.Constraint("Angle", 3, Q("59 deg")),
    Sketcher.Constraint("DistanceY", 1, 2, 1, 1, 2.5),
    Sketcher.Constraint("DistanceX", -1, 1, 0, 2, 150.0),
    Sketcher.Constraint("DistanceY", -1, 1, 0, 2, 10.0),
])
groove7 = doc.addObject("PartDesign::Groove", "Groove006")
body.addObject(groove7)
groove7.Profile = sketch9
groove7.ReferenceAxis = (sketch9, ["Axis0"])
groove7.Angle = 360

sketch10 = doc.addObject("Sketcher::SketchObject", "Sketch009")
body.addObject(sketch10)
sketch10.AttachmentSupport = (doc.YZ_Plane, [""])
sketch10.MapMode = "FlatFace"
sketch10.AttachmentOffset = App.Placement(V(0, 0, 72.5), App.Rotation())
sketch10.addGeometry([
    Part.LineSegment(V(-224, 10, 0), V(-192.5, 10, 0)),
    Part.LineSegment(V(-192.5, 10, 0), V(-192.5, 7.5, 0)),
    Part.LineSegment(V(-192.5, 7.5, 0), V(-222.5, 7.5, 0)),
    Part.LineSegment(V(-222.5, 7.5, 0), V(-224, 10, 0)),
], False)
sketch10.addGeometry(Part.LineSegment(V(-192.5, 10, 0), V(-224, 10, 0)), True)
sketch10.addConstraint([
    Sketcher.Constraint("Coincident", 0, 2, 1, 1),
    Sketcher.Constraint("Coincident", 1, 2, 2, 1),
    Sketcher.Constraint("Coincident", 2, 2, 3, 1),
    Sketcher.Constraint("Coincident", 3, 2, 0, 1),
    Sketcher.Constraint("Horizontal", 0),
    Sketcher.Constraint("Vertical", 1),
    Sketcher.Constraint("Horizontal", 2),
    Sketcher.Constraint("Horizontal", 4),
    Sketcher.Constraint("Coincident", 4, 1, 0, 2),
    Sketcher.Constraint("Equal", 0, 4),
    Sketcher.Constraint("DistanceX", 2, 2, 2, 1, 30.0),
    Sketcher.Constraint("Angle", 3, Q("121 deg")),
    Sketcher.Constraint("DistanceY", 1, 2, 1, 1, 2.5),
    Sketcher.Constraint("DistanceY", -1, 1, 0, 2, 10.0),
    Sketcher.Constraint("DistanceX", 0, 2, -1, 1, 192.5),
])
groove8 = doc.addObject("PartDesign::Groove", "Groove007")
body.addObject(groove8)
groove8.Profile = sketch10
groove8.ReferenceAxis = (sketch10, ["Axis0"])
groove8.Angle = 360

sketch11 = doc.addObject("Sketcher::SketchObject", "Sketch010")
body.addObject(sketch11)
sketch11.AttachmentSupport = (doc.XZ_Plane, [""])
sketch11.MapMode = "FlatFace"
sketch11.AttachmentOffset = App.Placement(V(0, 0, 117.5), App.Rotation())
sketch11.addGeometry([
    Part.LineSegment(V(181.5, 10, 0), V(150, 10, 0)),
    Part.LineSegment(V(150, 10, 0), V(150, 7.5, 0)),
    Part.LineSegment(V(150, 7.5, 0), V(180, 7.5, 0)),
    Part.LineSegment(V(180, 7.5, 0), V(181.5, 10, 0)),
], False)
sketch11.addGeometry(Part.LineSegment(V(150, 10, 0), V(181.5, 10, 0)), True)
sketch11.addConstraint([
    Sketcher.Constraint("Coincident", 0, 2, 1, 1),
    Sketcher.Constraint("Coincident", 1, 2, 2, 1),
    Sketcher.Constraint("Coincident", 2, 2, 3, 1),
    Sketcher.Constraint("Coincident", 3, 2, 0, 1),
    Sketcher.Constraint("Horizontal", 0),
    Sketcher.Constraint("Vertical", 1),
    Sketcher.Constraint("Horizontal", 2),
    Sketcher.Constraint("Horizontal", 4),
    Sketcher.Constraint("Coincident", 4, 1, 0, 2),
    Sketcher.Constraint("Equal", 0, 4),
    Sketcher.Constraint("DistanceX", 2, 1, 2, 2, 30.0),
    Sketcher.Constraint("Angle", 3, Q("59 deg")),
    Sketcher.Constraint("DistanceY", 1, 2, 1, 1, 2.5),
    Sketcher.Constraint("DistanceX", -1, 1, 0, 2, 150.0),
    Sketcher.Constraint("DistanceY", -1, 1, 0, 2, 10.0),
])
groove9 = doc.addObject("PartDesign::Groove", "Groove008")
body.addObject(groove9)
groove9.Profile = sketch11
groove9.ReferenceAxis = (sketch11, ["Axis0"])
groove9.Angle = 360

sketch12 = doc.addObject("Sketcher::SketchObject", "Sketch011")
body.addObject(sketch12)
sketch12.AttachmentSupport = (doc.XY_Plane, [""])
sketch12.MapMode = "FlatFace"
sketch12.AttachmentOffset = App.Placement(V(0, 0, 20), App.Rotation())
sketch12.addGeometry([
    Part.Circle(V(-430, 220, 0), V(0, 0, 1), 4.2),
    Part.Circle(V(-390, 220, 0), V(0, 0, 1), 4.2),
    Part.Circle(V(-430, 180, 0), V(0, 0, 1), 4.2),
    Part.Circle(V(-390, 180, 0), V(0, 0, 1), 4.2),
    Part.Circle(V(-215, 40, 0), V(0, 0, 1), 4.2),
    Part.Circle(V(-160, 40, 0), V(0, 0, 1), 4.2),
    Part.Circle(V(390, 220, 0), V(0, 0, 1), 4.2),
    Part.Circle(V(430, 220, 0), V(0, 0, 1), 4.2),
    Part.Circle(V(390, 180, 0), V(0, 0, 1), 4.2),
    Part.Circle(V(430, 180, 0), V(0, 0, 1), 4.2),
    Part.Circle(V(430, -180, 0), V(0, 0, 1), 4.2),
    Part.Circle(V(390, -180, 0), V(0, 0, 1), 4.2),
    Part.Circle(V(430, -220, 0), V(0, 0, 1), 4.2),
    Part.Circle(V(390, -220, 0), V(0, 0, 1), 4.2),
    Part.Circle(V(-160, -40, 0), V(0, 0, 1), 4.2),
    Part.Circle(V(-215, -40, 0), V(0, 0, 1), 4.2),
    Part.Circle(V(-390, -180, 0), V(0, 0, 1), 4.2),
    Part.Circle(V(-430, -180, 0), V(0, 0, 1), 4.2),
    Part.Circle(V(-390, -220, 0), V(0, 0, 1), 4.2),
    Part.Circle(V(-430, -220, 0), V(0, 0, 1), 4.2),
], False)
sketch12.addConstraint([
    Sketcher.Constraint("Equal", 0, 1),
    Sketcher.Constraint("Equal", 1, 2),
    Sketcher.Constraint("Equal", 2, 3),
    Sketcher.Constraint("Equal", 3, 4),
    Sketcher.Constraint("Equal", 4, 5),
    Sketcher.Constraint("Equal", 5, 6),
    Sketcher.Constraint("Equal", 6, 7),
    Sketcher.Constraint("Equal", 7, 8),
    Sketcher.Constraint("Equal", 8, 9),
    Sketcher.Constraint("Equal", 9, 10),
    Sketcher.Constraint("Equal", 10, 11),
    Sketcher.Constraint("Equal", 11, 12),
    Sketcher.Constraint("Equal", 12, 13),
    Sketcher.Constraint("Equal", 13, 14),
    Sketcher.Constraint("Equal", 14, 15),
    Sketcher.Constraint("Equal", 15, 16),
    Sketcher.Constraint("Equal", 16, 17),
    Sketcher.Constraint("Equal", 17, 18),
    Sketcher.Constraint("Equal", 18, 19),
    Sketcher.Constraint("Symmetric", 2, 3, 10, 3, -1, 1),
    Sketcher.Constraint("Symmetric", 3, 3, 11, 3, -1, 1),
    Sketcher.Constraint("Symmetric", 0, 3, 12, 3, -1, 1),
    Sketcher.Constraint("Symmetric", 1, 3, 13, 3, -1, 1),
    Sketcher.Constraint("Symmetric", 8, 3, 16, 3, -1, 1),
    Sketcher.Constraint("Symmetric", 9, 3, 17, 3, -1, 1),
    Sketcher.Constraint("Symmetric", 6, 3, 18, 3, -1, 1),
    Sketcher.Constraint("Symmetric", 7, 3, 19, 3, -1, 1),
    Sketcher.Constraint("Symmetric", 1, 3, 6, 3, -2),
    Sketcher.Constraint("Symmetric", 0, 3, 7, 3, -2),
    Sketcher.Constraint("Symmetric", 3, 3, 8, 3, -2),
    Sketcher.Constraint("Symmetric", 2, 3, 9, 3, -2),
    Sketcher.Constraint("Symmetric", 5, 3, 14, 3, -1),
    Sketcher.Constraint("Symmetric", 4, 3, 15, 3, -1),
    Sketcher.Constraint("Horizontal", 0, 3, 1, 3),
    Sketcher.Constraint("Horizontal", 2, 3, 3, 3),
    Sketcher.Constraint("Horizontal", 4, 3, 5, 3),
    Sketcher.Constraint("Vertical", 0, 3, 2, 3),
    Sketcher.Constraint("Vertical", 1, 3, 3, 3),
    Sketcher.Constraint("Diameter", 0, 8.4),
    Sketcher.Constraint("DistanceX", 0, 3, -1, 1, 430.0),
    Sketcher.Constraint("DistanceY", -1, 1, 0, 3, 220.0),
    Sketcher.Constraint("DistanceX", 1, 3, -1, 1, 390.0),
    Sketcher.Constraint("DistanceY", -1, 1, 2, 3, 180.0),
    Sketcher.Constraint("DistanceY", -1, 1, 4, 3, 40.0),
    Sketcher.Constraint("DistanceX", 4, 3, 5, 3, 55.0),
    Sketcher.Constraint("DistanceX", 4, 3, -1, 1, 215.001866),
])
doc.recompute()
hole = doc.addObject("PartDesign::Hole", "Hole")
body.addObject(hole)
hole.Profile = sketch12
hole.ThreadType = "None"
hole.Diameter = 8.4
hole.DepthType = "ThroughAll"
hole.HoleCutType = "Counterbore"
hole.HoleCutDiameter = 15
hole.HoleCutDepth = 9

sketch13 = doc.addObject("Sketcher::SketchObject", "Sketch012")
body.addObject(sketch13)
sketch13.AttachmentSupport = (doc.XY_Plane, [""])
sketch13.MapMode = "FlatFace"
sketch13.AttachmentOffset = App.Placement(V(0, 0, 20), App.Rotation())
sketch13.addGeometry([
    Part.LineSegment(V(295, 115, 0), V(295, -45, 0)),
    Part.LineSegment(V(295, -45, 0), V(375, -45, 0)),
    Part.LineSegment(V(375, -45, 0), V(375, 115, 0)),
    Part.LineSegment(V(375, 115, 0), V(295, 115, 0)),
], False)
sketch13.addConstraint([
    Sketcher.Constraint("Coincident", 0, 2, 1, 1),
    Sketcher.Constraint("Coincident", 1, 2, 2, 1),
    Sketcher.Constraint("Coincident", 2, 2, 3, 1),
    Sketcher.Constraint("Coincident", 3, 2, 0, 1),
    Sketcher.Constraint("Vertical", 0),
    Sketcher.Constraint("Horizontal", 1),
    Sketcher.Constraint("Vertical", 2),
    Sketcher.Constraint("Horizontal", 3),
    Sketcher.Constraint("DistanceX", 1, 1, 1, 2, 80.0),
    Sketcher.Constraint("DistanceY", 0, 2, 0, 1, 160.0),
    Sketcher.Constraint("DistanceX", -1, 1, 0, 2, 295.0),
    Sketcher.Constraint("DistanceY", 0, 2, -1, 1, 45.0),
])
pocket2 = doc.addObject("PartDesign::Pocket", "Pocket001")
body.addObject(pocket2)
pocket2.Profile = sketch13
pocket2.Type = "ThroughAll"

doc.recompute()
